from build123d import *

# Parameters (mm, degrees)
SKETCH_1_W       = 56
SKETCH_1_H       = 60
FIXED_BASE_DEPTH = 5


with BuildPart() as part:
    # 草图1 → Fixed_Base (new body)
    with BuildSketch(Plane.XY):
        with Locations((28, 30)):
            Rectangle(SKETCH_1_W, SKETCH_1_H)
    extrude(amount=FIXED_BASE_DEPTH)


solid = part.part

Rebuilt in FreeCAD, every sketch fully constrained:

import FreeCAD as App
import Part
import Sketcher


def add_polygon(sketch, points):
    """Adds a closed chain of lines whose ends are joined by coincident constraints."""
    first, n = sketch.GeometryCount, len(points)
    for a, b in zip(points, points[1:] + points[:1]):
        sketch.addGeometry(Part.LineSegment(App.Vector(*a, 0), App.Vector(*b, 0)), False)
    for i in range(n):
        sketch.addConstraint(Sketcher.Constraint("Coincident", first + i, 2, first + (i + 1) % n, 1))

doc = App.newDocument("Part")
body = doc.addObject("PartDesign::Body", "Body")

# Sketch on XY plane
sketch1 = body.newObject("Sketcher::SketchObject", "Sketch")
sketch1.AttachmentSupport = (doc.getObject("XY_Plane"), [""])
sketch1.MapMode = "FlatFace"
add_polygon(sketch1, [(0, 60), (0, 0), (56, 0), (56, 60)])  # lines 0-3
sketch1.addConstraint([
    Sketcher.Constraint("Vertical", 0),
    Sketcher.Constraint("Horizontal", 1),
    Sketcher.Constraint("Vertical", 2),
    Sketcher.Constraint("Horizontal", 3),
    Sketcher.Constraint("Coincident", 0, 2, -1, 1),
    Sketcher.Constraint("DistanceX", 1, 1, 1, 2, 56.0),
    Sketcher.Constraint("DistanceY", 0, 2, 0, 1, 60.0),
])
pad1 = body.newObject("PartDesign::Pad", "Pad")
pad1.Profile = sketch1
pad1.Length = 5

doc.recompute()
